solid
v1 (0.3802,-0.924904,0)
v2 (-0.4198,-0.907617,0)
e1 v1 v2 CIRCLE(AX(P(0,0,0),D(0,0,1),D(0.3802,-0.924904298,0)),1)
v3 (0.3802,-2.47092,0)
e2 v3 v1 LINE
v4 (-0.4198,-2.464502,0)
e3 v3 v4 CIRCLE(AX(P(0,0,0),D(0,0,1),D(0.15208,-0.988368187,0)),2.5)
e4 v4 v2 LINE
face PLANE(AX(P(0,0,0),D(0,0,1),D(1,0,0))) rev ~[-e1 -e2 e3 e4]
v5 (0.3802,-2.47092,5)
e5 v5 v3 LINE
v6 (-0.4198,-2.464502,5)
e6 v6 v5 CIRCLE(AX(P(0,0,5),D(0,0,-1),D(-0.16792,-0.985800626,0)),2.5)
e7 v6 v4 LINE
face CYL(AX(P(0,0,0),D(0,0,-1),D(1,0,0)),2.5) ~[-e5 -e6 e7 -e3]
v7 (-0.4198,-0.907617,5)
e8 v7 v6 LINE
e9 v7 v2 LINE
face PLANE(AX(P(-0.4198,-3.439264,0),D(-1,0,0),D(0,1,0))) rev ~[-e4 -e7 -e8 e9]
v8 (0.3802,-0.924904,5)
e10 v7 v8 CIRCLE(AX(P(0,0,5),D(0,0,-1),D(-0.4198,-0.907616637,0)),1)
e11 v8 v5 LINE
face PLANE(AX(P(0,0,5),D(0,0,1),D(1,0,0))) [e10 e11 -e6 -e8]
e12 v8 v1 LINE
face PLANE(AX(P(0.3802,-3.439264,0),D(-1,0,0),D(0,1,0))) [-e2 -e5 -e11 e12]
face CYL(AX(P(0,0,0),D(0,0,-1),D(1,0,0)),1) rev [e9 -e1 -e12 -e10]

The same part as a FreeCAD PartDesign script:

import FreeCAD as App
import Part
import Sketcher

V = App.Vector
Q = App.Units.Quantity

doc = App.newDocument("Part")
body = doc.addObject("PartDesign::Body", "Body")

sketch1 = doc.addObject("Sketcher::SketchObject", "Sketch")
body.addObject(sketch1)
sketch1.AttachmentSupport = (doc.XY_Plane, [""])
sketch1.MapMode = "FlatFace"
sketch1.addGeometry(Part.Circle(V(0, 0, 0), V(0, 0, 1), 2.5), False)
sketch1.addGeometry(Part.Circle(V(0, 0, 0), V(0, 0, 1), 1), False)
sketch1.addConstraint(Sketcher.Constraint("Coincident", 0, 3, -1, 1))
sketch1.addConstraint(Sketcher.Constraint("Coincident", 1, 3, -1, 1))
sketch1.addConstraint(Sketcher.Constraint("Diameter", 0, Q("5 mm")))
sketch1.addConstraint(Sketcher.Constraint("Diameter", 1, Q("2 mm")))
pad1 = doc.addObject("PartDesign::Pad", "Pad")
body.addObject(pad1)
pad1.Profile = sketch1
pad1.Length = 5

sketch2 = doc.addObject("Sketcher::SketchObject", "Sketch001")
body.addObject(sketch2)
sketch2.AttachmentSupport = (doc.XY_Plane, [""])
sketch2.MapMode = "FlatFace"
sketch2.addGeometry(Part.LineSegment(V(-0.4198, 0, 0), V(-0.4198, -3.439264, 0)), False)
sketch2.addGeometry(Part.LineSegment(V(-0.4198, -3.439264, 0), V(0.3802, -3.439264, 0)), False)
sketch2.addGeometry(Part.LineSegment(V(0.3802, -3.439264, 0), V(0.3802, 0, 0)), False)
sketch2.addGeometry(Part.LineSegment(V(0.3802, 0, 0), V(-0.4198, 0, 0)), False)
sketch2.addConstraint(Sketcher.Constraint("Coincident", 0, 2, 1, 1))
sketch2.addConstraint(Sketcher.Constraint("Coincident", 1, 2, 2, 1))
sketch2.addConstraint(Sketcher.Constraint("Coincident", 2, 2, 3, 1))
sketch2.addConstraint(Sketcher.Constraint("Coincident", 3, 2, 0, 1))
sketch2.addConstraint(Sketcher.Constraint("Vertical", 0))
sketch2.addConstraint(Sketcher.Constraint("Horizontal", 1))
sketch2.addConstraint(Sketcher.Constraint("Vertical", 2))
sketch2.addConstraint(Sketcher.Constraint("Horizontal", 3))
sketch2.addConstraint(Sketcher.Constraint("PointOnObject", 2, 2, -1))
sketch2.addConstraint(Sketcher.Constraint("DistanceX", 1, 1, 1, 2, Q("0.8 mm")))
sketch2.addConstraint(Sketcher.Constraint("DistanceX", 0, 2, -1, 1, Q("0.4198 mm")))
sketch2.addConstraint(Sketcher.Constraint("DistanceY", 0, 2, 0, 1, Q("3.439264 mm")))
pocket1 = doc.addObject("PartDesign::Pocket", "Pocket")
body.addObject(pocket1)
pocket1.Profile = sketch2
pocket1.Length = 25.4
pocket1.Reversed = True

doc.recompute()
